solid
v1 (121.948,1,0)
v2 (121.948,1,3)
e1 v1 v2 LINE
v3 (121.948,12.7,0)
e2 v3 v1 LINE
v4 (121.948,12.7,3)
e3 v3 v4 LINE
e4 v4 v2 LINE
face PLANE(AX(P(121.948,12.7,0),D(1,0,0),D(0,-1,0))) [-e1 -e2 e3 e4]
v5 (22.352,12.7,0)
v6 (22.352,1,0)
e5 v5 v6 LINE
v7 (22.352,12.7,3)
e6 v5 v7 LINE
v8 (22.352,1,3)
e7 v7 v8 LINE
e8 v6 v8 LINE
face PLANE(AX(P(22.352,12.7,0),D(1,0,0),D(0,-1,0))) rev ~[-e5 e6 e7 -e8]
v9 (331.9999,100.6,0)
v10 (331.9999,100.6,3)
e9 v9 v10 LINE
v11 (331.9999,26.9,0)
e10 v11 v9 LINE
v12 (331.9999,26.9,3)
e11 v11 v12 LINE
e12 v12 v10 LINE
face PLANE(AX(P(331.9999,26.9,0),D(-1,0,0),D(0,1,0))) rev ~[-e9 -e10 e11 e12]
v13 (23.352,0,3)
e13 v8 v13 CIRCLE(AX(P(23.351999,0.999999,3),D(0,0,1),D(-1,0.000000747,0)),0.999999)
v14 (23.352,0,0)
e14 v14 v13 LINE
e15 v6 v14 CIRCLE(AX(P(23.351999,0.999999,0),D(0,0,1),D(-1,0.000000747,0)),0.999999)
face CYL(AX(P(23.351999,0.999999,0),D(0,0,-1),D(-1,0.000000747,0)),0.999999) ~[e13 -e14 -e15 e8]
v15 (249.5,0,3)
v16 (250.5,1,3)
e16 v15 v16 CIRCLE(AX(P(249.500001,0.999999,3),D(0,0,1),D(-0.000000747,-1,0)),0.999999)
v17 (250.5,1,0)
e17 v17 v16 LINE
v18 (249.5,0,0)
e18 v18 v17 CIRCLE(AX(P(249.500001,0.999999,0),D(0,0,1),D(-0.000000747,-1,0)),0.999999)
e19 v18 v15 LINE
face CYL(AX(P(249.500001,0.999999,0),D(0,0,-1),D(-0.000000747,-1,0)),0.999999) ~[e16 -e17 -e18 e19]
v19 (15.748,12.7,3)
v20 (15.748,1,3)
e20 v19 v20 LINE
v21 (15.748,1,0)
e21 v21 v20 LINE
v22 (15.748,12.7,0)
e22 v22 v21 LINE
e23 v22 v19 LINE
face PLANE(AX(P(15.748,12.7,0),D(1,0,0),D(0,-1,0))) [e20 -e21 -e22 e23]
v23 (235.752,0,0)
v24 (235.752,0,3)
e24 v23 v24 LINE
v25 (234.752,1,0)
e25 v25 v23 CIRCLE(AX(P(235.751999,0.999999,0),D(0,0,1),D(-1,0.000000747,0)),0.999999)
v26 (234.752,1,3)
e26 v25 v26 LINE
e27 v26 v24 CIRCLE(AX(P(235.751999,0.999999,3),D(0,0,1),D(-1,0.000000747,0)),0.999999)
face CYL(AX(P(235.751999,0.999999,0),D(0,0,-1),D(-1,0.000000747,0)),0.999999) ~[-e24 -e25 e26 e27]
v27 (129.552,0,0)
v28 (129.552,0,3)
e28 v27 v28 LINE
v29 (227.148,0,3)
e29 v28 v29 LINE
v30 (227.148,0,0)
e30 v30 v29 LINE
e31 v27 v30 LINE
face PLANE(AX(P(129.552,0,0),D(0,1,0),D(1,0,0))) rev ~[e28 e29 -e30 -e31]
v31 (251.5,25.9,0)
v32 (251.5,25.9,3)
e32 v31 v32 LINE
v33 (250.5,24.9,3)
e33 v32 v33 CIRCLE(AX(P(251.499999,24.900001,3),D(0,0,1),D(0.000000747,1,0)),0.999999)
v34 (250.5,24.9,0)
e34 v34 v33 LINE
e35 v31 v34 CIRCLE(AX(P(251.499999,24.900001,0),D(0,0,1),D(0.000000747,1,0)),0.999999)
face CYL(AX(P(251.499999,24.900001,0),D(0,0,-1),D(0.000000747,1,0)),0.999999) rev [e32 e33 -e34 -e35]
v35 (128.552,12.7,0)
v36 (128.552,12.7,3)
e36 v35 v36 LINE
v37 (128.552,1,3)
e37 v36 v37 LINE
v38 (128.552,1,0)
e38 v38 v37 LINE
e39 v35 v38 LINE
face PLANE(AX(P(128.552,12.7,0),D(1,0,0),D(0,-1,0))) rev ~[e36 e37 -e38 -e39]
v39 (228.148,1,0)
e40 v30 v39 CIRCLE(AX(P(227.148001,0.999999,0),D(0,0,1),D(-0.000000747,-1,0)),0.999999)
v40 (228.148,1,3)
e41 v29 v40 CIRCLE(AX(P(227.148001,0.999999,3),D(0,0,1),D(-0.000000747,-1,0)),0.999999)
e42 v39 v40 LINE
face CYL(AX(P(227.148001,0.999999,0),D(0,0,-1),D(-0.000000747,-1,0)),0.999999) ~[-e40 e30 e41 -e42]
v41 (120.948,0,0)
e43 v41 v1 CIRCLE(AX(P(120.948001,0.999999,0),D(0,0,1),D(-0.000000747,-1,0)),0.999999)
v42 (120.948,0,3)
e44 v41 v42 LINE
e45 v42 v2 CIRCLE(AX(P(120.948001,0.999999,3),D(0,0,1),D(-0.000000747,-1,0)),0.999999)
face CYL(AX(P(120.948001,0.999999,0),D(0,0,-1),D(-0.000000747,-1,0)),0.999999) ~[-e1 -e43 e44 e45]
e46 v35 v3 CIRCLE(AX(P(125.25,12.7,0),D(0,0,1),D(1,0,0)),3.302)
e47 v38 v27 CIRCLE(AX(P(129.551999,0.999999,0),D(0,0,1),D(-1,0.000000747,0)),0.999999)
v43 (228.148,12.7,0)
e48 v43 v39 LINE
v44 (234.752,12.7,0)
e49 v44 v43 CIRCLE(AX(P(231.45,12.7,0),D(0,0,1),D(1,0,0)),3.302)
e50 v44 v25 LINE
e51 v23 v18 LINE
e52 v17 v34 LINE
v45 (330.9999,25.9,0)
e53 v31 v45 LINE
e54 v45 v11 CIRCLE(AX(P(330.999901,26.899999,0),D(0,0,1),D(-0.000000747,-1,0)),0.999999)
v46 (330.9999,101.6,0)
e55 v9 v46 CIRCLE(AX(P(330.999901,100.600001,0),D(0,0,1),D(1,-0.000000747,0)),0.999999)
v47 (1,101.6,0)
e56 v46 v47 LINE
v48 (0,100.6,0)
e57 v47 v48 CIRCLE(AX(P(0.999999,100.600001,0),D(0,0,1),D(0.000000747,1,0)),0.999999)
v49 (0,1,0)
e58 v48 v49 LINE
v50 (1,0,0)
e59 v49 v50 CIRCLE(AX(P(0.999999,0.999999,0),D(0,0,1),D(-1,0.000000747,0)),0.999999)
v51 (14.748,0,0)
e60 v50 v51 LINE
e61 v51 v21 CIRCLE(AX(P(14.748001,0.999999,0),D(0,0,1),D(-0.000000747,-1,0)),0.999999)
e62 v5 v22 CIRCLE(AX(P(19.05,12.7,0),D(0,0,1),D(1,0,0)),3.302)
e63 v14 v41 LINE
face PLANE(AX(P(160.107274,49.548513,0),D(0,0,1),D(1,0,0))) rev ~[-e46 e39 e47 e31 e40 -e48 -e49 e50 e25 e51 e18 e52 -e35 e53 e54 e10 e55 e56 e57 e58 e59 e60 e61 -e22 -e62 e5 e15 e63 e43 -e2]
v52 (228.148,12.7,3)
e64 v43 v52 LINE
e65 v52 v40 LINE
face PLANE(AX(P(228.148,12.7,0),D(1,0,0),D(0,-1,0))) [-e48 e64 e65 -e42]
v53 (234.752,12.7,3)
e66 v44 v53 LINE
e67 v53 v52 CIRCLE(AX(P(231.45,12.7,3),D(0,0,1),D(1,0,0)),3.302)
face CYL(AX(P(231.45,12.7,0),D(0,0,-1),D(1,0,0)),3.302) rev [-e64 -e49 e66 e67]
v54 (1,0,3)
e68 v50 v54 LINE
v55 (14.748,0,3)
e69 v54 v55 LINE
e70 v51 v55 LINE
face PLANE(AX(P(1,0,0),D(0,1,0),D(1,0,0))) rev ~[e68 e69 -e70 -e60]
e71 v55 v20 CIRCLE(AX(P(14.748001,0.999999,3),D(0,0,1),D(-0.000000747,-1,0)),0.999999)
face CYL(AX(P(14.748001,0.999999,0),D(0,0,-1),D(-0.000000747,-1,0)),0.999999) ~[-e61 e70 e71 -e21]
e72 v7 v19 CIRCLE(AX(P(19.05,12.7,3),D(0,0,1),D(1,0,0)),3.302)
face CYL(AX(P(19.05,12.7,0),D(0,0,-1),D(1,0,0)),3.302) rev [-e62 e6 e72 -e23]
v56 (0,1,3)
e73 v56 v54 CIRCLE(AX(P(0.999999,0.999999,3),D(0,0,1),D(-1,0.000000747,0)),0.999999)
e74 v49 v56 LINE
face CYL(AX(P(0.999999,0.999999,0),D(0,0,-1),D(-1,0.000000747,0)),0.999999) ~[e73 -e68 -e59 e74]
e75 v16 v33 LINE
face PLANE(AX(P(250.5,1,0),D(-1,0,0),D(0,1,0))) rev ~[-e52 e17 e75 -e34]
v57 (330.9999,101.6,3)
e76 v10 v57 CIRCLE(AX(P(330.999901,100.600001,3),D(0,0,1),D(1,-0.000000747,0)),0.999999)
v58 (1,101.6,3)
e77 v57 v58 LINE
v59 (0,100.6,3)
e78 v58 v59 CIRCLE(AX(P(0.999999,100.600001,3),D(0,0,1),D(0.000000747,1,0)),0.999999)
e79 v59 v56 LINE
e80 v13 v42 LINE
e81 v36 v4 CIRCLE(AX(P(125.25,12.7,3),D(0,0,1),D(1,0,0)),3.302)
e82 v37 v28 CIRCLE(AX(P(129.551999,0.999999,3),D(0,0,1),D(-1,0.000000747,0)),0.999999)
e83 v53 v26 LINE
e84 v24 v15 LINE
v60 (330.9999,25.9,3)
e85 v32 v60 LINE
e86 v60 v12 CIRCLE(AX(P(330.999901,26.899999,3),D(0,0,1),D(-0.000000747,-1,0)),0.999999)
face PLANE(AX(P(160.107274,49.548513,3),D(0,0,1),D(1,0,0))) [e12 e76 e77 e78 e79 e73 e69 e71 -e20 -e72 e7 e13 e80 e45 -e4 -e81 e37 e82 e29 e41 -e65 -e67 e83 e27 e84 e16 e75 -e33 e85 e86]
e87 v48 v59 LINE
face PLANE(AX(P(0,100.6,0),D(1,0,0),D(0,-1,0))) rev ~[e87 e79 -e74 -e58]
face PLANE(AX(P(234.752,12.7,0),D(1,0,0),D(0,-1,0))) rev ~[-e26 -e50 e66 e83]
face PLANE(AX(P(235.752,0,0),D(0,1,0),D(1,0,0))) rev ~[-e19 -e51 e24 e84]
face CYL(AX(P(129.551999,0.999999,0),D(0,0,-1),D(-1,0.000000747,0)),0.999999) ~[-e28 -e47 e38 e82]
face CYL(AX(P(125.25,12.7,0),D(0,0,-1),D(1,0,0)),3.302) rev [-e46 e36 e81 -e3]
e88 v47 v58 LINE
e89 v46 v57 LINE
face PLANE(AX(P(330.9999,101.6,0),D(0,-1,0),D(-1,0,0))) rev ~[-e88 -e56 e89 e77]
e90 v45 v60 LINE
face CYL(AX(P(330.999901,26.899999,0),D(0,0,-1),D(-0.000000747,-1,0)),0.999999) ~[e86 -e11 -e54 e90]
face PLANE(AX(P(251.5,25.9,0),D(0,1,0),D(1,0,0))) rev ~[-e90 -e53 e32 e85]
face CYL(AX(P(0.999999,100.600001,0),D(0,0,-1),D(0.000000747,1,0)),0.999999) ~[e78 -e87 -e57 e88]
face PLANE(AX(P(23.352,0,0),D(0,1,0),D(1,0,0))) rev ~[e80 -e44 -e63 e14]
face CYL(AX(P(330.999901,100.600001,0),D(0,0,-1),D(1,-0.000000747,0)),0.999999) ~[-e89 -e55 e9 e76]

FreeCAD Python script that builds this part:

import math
import FreeCAD as App
import Part
import Sketcher
from FreeCAD import Vector
Q = App.Units.Quantity

doc = App.newDocument("Part")
body = doc.addObject("PartDesign::Body", "Body")

sketch1 = doc.addObject("Sketcher::SketchObject", "Sketch")
body.addObject(sketch1)
sketch1.AttachmentSupport = (doc.XY_Plane, [""])
sketch1.MapMode = "FlatFace"
sketch1.addGeometry(Part.LineSegment(Vector(0, 100.6, 0), Vector(0, 1, 0)), False)
sketch1.addGeometry(Part.ArcOfCircle(Part.Circle(Vector(1, 1, 0), Vector(0, 0, 1), 1), math.radians(180), math.radians(270)), False)
sketch1.addGeometry(Part.LineSegment(Vector(1, 0, 0), Vector(14.7, 0, 0)), False)
sketch1.addGeometry(Part.ArcOfCircle(Part.Circle(Vector(14.7, 1, 0), Vector(0, 0, 1), 1), math.radians(-90), math.radians(0)), False)
sketch1.addGeometry(Part.LineSegment(Vector(15.7, 1, 0), Vector(15.7, 12.7, 0)), False)
sketch1.addGeometry(Part.ArcOfCircle(Part.Circle(Vector(19.1, 12.7, 0), Vector(0, 0, 1), 3.3), math.radians(0), math.radians(180)), False)
sketch1.addGeometry(Part.LineSegment(Vector(22.4, 12.7, 0), Vector(22.4, 1, 0)), False)
sketch1.addGeometry(Part.ArcOfCircle(Part.Circle(Vector(23.4, 1, 0), Vector(0, 0, 1), 1), math.radians(180), math.radians(270)), False)
sketch1.addGeometry(Part.LineSegment(Vector(23.4, 0, 0), Vector(120.9, 0, 0)), False)
sketch1.addGeometry(Part.ArcOfCircle(Part.Circle(Vector(120.9, 1, 0), Vector(0, 0, 1), 1), math.radians(-90), math.radians(0)), False)
sketch1.addGeometry(Part.LineSegment(Vector(121.9, 1, 0), Vector(121.9, 12.7, 0)), False)
sketch1.addGeometry(Part.ArcOfCircle(Part.Circle(Vector(125.2, 12.7, 0), Vector(0, 0, 1), 3.3), math.radians(0), math.radians(180)), False)
sketch1.addGeometry(Part.LineSegment(Vector(128.6, 12.7, 0), Vector(128.6, 1, 0)), False)
sketch1.addGeometry(Part.ArcOfCircle(Part.Circle(Vector(129.6, 1, 0), Vector(0, 0, 1), 1), math.radians(180), math.radians(270)), False)
sketch1.addGeometry(Part.LineSegment(Vector(129.6, 0, 0), Vector(227.1, 0, 0)), False)
sketch1.addGeometry(Part.ArcOfCircle(Part.Circle(Vector(227.1, 1, 0), Vector(0, 0, 1), 1), math.radians(-90), math.radians(0)), False)
sketch1.addGeometry(Part.LineSegment(Vector(228.1, 1, 0), Vector(228.1, 12.7, 0)), False)
sketch1.addGeometry(Part.ArcOfCircle(Part.Circle(Vector(231.4, 12.7, 0), Vector(0, 0, 1), 3.3), math.radians(0), math.radians(180)), False)
sketch1.addGeometry(Part.LineSegment(Vector(234.8, 12.7, 0), Vector(234.8, 1, 0)), False)
sketch1.addGeometry(Part.ArcOfCircle(Part.Circle(Vector(235.8, 1, 0), Vector(0, 0, 1), 1), math.radians(180), math.radians(270)), False)
sketch1.addGeometry(Part.LineSegment(Vector(235.8, 0, 0), Vector(249.5, 0, 0)), False)
sketch1.addGeometry(Part.ArcOfCircle(Part.Circle(Vector(249.5, 1, 0), Vector(0, 0, 1), 1), math.radians(-90), math.radians(0)), False)
sketch1.addGeometry(Part.LineSegment(Vector(250.5, 1, 0), Vector(250.5, 24.9, 0)), False)
sketch1.addGeometry(Part.ArcOfCircle(Part.Circle(Vector(251.5, 24.9, 0), Vector(0, 0, 1), 1), math.radians(90), math.radians(180)), False)
sketch1.addGeometry(Part.LineSegment(Vector(251.5, 25.9, 0), Vector(331, 25.9, 0)), False)
sketch1.addGeometry(Part.ArcOfCircle(Part.Circle(Vector(331, 26.9, 0), Vector(0, 0, 1), 1), math.radians(-90), math.radians(0)), False)
sketch1.addGeometry(Part.LineSegment(Vector(332, 26.9, 0), Vector(332, 100.6, 0)), False)
sketch1.addGeometry(Part.ArcOfCircle(Part.Circle(Vector(331, 100.6, 0), Vector(0, 0, 1), 1), math.radians(0), math.radians(90)), False)
sketch1.addGeometry(Part.LineSegment(Vector(331, 101.6, 0), Vector(1, 101.6, 0)), False)
sketch1.addGeometry(Part.ArcOfCircle(Part.Circle(Vector(1, 100.6, 0), Vector(0, 0, 1), 1), math.radians(90), math.radians(180)), False)
sketch1.addConstraint(Sketcher.Constraint("Tangent", 0, 2, 1, 1))
sketch1.addConstraint(Sketcher.Constraint("Tangent", 1, 2, 2, 1))
sketch1.addConstraint(Sketcher.Constraint("Tangent", 2, 2, 3, 1))
sketch1.addConstraint(Sketcher.Constraint("Tangent", 3, 2, 4, 1))
sketch1.addConstraint(Sketcher.Constraint("Tangent", 4, 2, 5, 2))
sketch1.addConstraint(Sketcher.Constraint("Tangent", 5, 1, 6, 1))
sketch1.addConstraint(Sketcher.Constraint("Tangent", 6, 2, 7, 1))
sketch1.addConstraint(Sketcher.Constraint("Tangent", 7, 2, 8, 1))
sketch1.addConstraint(Sketcher.Constraint("Tangent", 8, 2, 9, 1))
sketch1.addConstraint(Sketcher.Constraint("Tangent", 9, 2, 10, 1))
sketch1.addConstraint(Sketcher.Constraint("Tangent", 10, 2, 11, 2))
sketch1.addConstraint(Sketcher.Constraint("Tangent", 11, 1, 12, 1))
sketch1.addConstraint(Sketcher.Constraint("Tangent", 12, 2, 13, 1))
sketch1.addConstraint(Sketcher.Constraint("Tangent", 13, 2, 14, 1))
sketch1.addConstraint(Sketcher.Constraint("Tangent", 14, 2, 15, 1))
sketch1.addConstraint(Sketcher.Constraint("Tangent", 15, 2, 16, 1))
sketch1.addConstraint(Sketcher.Constraint("Tangent", 16, 2, 17, 2))
sketch1.addConstraint(Sketcher.Constraint("Tangent", 17, 1, 18, 1))
sketch1.addConstraint(Sketcher.Constraint("Tangent", 18, 2, 19, 1))
sketch1.addConstraint(Sketcher.Constraint("Tangent", 19, 2, 20, 1))
sketch1.addConstraint(Sketcher.Constraint("Tangent", 20, 2, 21, 1))
sketch1.addConstraint(Sketcher.Constraint("Tangent", 21, 2, 22, 1))
sketch1.addConstraint(Sketcher.Constraint("Tangent", 22, 2, 23, 2))
sketch1.addConstraint(Sketcher.Constraint("Tangent", 23, 1, 24, 1))
sketch1.addConstraint(Sketcher.Constraint("Tangent", 24, 2, 25, 1))
sketch1.addConstraint(Sketcher.Constraint("Tangent", 25, 2, 26, 1))
sketch1.addConstraint(Sketcher.Constraint("Tangent", 26, 2, 27, 1))
sketch1.addConstraint(Sketcher.Constraint("Tangent", 27, 2, 28, 1))
sketch1.addConstraint(Sketcher.Constraint("Tangent", 28, 2, 29, 1))
sketch1.addConstraint(Sketcher.Constraint("Tangent", 29, 2, 0, 1))
sketch1.addConstraint(Sketcher.Constraint("Vertical", 0))
sketch1.addConstraint(Sketcher.Constraint("Horizontal", 2))
sketch1.addConstraint(Sketcher.Constraint("Vertical", 4))
sketch1.addConstraint(Sketcher.Constraint("Vertical", 6))
sketch1.addConstraint(Sketcher.Constraint("Horizontal", 8))
sketch1.addConstraint(Sketcher.Constraint("Vertical", 10))
sketch1.addConstraint(Sketcher.Constraint("Vertical", 12))
sketch1.addConstraint(Sketcher.Constraint("Horizontal", 14))
sketch1.addConstraint(Sketcher.Constraint("Vertical", 16))
sketch1.addConstraint(Sketcher.Constraint("Vertical", 18))
sketch1.addConstraint(Sketcher.Constraint("Horizontal", 20))
sketch1.addConstraint(Sketcher.Constraint("Vertical", 22))
sketch1.addConstraint(Sketcher.Constraint("Horizontal", 24))
sketch1.addConstraint(Sketcher.Constraint("Vertical", 26))
sketch1.addConstraint(Sketcher.Constraint("Horizontal", 28))
sketch1.addConstraint(Sketcher.Constraint("Equal", 1, 3))
sketch1.addConstraint(Sketcher.Constraint("Equal", 3, 7))
sketch1.addConstraint(Sketcher.Constraint("Equal", 7, 9))
sketch1.addConstraint(Sketcher.Constraint("Equal", 5, 11))
sketch1.addConstraint(Sketcher.Constraint("Equal", 9, 13))
sketch1.addConstraint(Sketcher.Constraint("Equal", 13, 15))
sketch1.addConstraint(Sketcher.Constraint("Equal", 11, 17))
sketch1.addConstraint(Sketcher.Constraint("Equal", 15, 19))
sketch1.addConstraint(Sketcher.Constraint("Equal", 19, 21))
sketch1.addConstraint(Sketcher.Constraint("Equal", 21, 23))
sketch1.addConstraint(Sketcher.Constraint("Equal", 23, 25))
sketch1.addConstraint(Sketcher.Constraint("Equal", 25, 27))
sketch1.addConstraint(Sketcher.Constraint("Equal", 27, 29))
sketch1.addConstraint(Sketcher.Constraint("PointOnObject", 0, 2, -2))
sketch1.addConstraint(Sketcher.Constraint("PointOnObject", 1, 2, -1))
sketch1.addConstraint(Sketcher.Constraint("PointOnObject", 7, 2, -1))
sketch1.addConstraint(Sketcher.Constraint("PointOnObject", 13, 2, -1))
sketch1.addConstraint(Sketcher.Constraint("PointOnObject", 19, 2, -1))
sketch1.addConstraint(Sketcher.Constraint("Horizontal", 5, 3, 11, 3))
sketch1.addConstraint(Sketcher.Constraint("Horizontal", 11, 3, 17, 3))
sketch1.addConstraint(Sketcher.Constraint("Equal", 8, 14))
sketch1.addConstraint(Sketcher.Constraint("Equal", 2, 20))
sketch1.addConstraint(Sketcher.Constraint("Radius", 1, Q("0.999999 mm")))
sketch1.addConstraint(Sketcher.Constraint("DistanceY", 0, 2, 0, 1, Q("99.6 mm")))
sketch1.addConstraint(Sketcher.Constraint("DistanceY", 4, 1, 4, 2, Q("11.7 mm")))
sketch1.addConstraint(Sketcher.Constraint("DistanceY", 22, 1, 22, 2, Q("23.9 mm")))
sketch1.addConstraint(Sketcher.Constraint("Radius", 5, Q("3.302 mm")))
sketch1.addConstraint(Sketcher.Constraint("DistanceX", -1, 1, 21, 3, Q("249.500001 mm")))
sketch1.addConstraint(Sketcher.Constraint("DistanceX", 3, 3, 9, 3, Q("106.2 mm")))
sketch1.addConstraint(Sketcher.Constraint("DistanceX", 24, 1, 24, 2, Q("79.4999 mm")))
pad1 = doc.addObject("PartDesign::Pad", "Pad")
body.addObject(pad1)
pad1.Profile = sketch1
pad1.Length = 3

doc.recompute()
